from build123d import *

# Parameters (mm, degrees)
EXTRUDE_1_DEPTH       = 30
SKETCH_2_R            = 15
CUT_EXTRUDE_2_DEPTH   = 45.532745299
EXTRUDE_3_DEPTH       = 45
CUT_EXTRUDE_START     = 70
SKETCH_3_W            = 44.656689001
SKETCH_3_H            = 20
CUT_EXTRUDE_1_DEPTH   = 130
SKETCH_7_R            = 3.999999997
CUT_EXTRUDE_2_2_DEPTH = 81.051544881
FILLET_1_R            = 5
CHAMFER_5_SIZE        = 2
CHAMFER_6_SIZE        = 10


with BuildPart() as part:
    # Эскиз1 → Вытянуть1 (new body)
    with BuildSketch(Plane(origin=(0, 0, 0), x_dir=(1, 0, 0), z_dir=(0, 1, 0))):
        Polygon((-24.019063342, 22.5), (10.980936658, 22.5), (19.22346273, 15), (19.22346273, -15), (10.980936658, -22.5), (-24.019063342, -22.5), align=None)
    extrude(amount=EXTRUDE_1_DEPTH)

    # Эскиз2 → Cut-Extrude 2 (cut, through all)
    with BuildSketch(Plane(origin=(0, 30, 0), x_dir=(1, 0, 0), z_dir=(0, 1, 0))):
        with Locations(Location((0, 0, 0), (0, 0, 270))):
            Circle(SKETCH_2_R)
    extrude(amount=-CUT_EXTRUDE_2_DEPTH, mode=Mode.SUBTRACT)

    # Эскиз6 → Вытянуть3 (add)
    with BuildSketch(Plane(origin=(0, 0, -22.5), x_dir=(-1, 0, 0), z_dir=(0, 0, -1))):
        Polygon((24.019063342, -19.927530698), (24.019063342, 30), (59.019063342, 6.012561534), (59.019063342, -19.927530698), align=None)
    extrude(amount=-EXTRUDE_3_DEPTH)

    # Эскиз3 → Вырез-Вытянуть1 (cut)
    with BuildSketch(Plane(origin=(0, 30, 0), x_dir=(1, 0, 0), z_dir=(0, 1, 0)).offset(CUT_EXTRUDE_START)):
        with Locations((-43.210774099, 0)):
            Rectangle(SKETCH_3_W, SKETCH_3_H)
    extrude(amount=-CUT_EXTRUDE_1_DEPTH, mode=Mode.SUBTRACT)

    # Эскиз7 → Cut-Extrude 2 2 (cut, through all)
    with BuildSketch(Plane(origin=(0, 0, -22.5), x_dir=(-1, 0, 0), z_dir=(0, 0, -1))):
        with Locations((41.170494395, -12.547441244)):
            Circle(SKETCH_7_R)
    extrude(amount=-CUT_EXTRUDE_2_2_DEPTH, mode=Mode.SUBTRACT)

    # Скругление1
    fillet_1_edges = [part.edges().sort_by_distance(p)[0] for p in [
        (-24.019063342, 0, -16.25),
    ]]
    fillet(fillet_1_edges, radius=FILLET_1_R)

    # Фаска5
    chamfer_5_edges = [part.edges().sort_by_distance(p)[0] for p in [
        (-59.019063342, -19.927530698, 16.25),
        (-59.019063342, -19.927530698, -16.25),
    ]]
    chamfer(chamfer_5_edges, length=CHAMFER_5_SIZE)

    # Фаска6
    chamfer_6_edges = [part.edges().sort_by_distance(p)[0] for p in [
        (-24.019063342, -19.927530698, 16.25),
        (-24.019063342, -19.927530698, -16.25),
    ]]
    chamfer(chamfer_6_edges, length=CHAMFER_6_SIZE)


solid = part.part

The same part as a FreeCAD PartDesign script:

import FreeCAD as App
import Part
import Sketcher
Q = App.Units.Quantity


def edges_at(feature, points):
    """Names of the edges that pass closest to the given points."""
    edges = feature.Shape.Edges
    near = lambda p: min(range(len(edges)), key=lambda i: edges[i].distToShape(Part.Vertex(*p))[0])
    return sorted({f"Edge{near(p) + 1}" for p in points})

doc = App.newDocument("Part")
params = doc.addObject("Spreadsheet::Sheet", "Params")
for row, (alias, value) in enumerate([
    ("sketch1_width", "35 mm"),
    ("sketch1_height", "45 mm"),
    ("sketch1_height2", "30 mm"),
    ("pad1_length", "30 mm"),
    ("sketch2_diameter", "30 mm"),
    ("sketch3_width", "35 mm"),
    ("pad2_length", "45 mm"),
    ("sketch4_height", "20 mm"),
    ("pocket2_length", "130 mm"),
    ("sketch5_diameter", "8 mm"),
    ("fillet_radius", "5 mm"),
    ("chamfer_size", "2 mm"),
    ("chamfer2_size", "10 mm"),
], start=1):
    params.set(f"A{row}", alias)
    params.set(f"B{row}", "=" + value)
    params.setAlias(f"B{row}", alias)

body = doc.addObject("PartDesign::Body", "Body")

# Sketch on XZ plane
sketch1 = body.newObject("Sketcher::SketchObject", "Sketch")
sketch1.AttachmentSupport = (doc.getObject("XZ_Plane"), [""])
sketch1.MapMode = "FlatFace"
sketch1.addGeometry(Part.LineSegment(App.Vector(11, -22, 0), App.Vector(-24, -22, 0)), False)
sketch1.addGeometry(Part.LineSegment(App.Vector(-24, -22, 0), App.Vector(-24, 22, 0)), False)
sketch1.addGeometry(Part.LineSegment(App.Vector(-24, 22, 0), App.Vector(11, 22, 0)), False)
sketch1.addGeometry(Part.LineSegment(App.Vector(11, 22, 0), App.Vector(19, 15, 0)), False)
sketch1.addGeometry(Part.LineSegment(App.Vector(19, 15, 0), App.Vector(19, -15, 0)), False)
sketch1.addGeometry(Part.LineSegment(App.Vector(19, -15, 0), App.Vector(11, -22, 0)), False)
sketch1.addConstraint(Sketcher.Constraint("Coincident", 0, 2, 1, 1))
sketch1.addConstraint(Sketcher.Constraint("Coincident", 1, 2, 2, 1))
sketch1.addConstraint(Sketcher.Constraint("Coincident", 2, 2, 3, 1))
sketch1.addConstraint(Sketcher.Constraint("Coincident", 3, 2, 4, 1))
sketch1.addConstraint(Sketcher.Constraint("Coincident", 4, 2, 5, 1))
sketch1.addConstraint(Sketcher.Constraint("Coincident", 5, 2, 0, 1))
sketch1.addConstraint(Sketcher.Constraint("Horizontal", 0))
sketch1.addConstraint(Sketcher.Constraint("Vertical", 1))
sketch1.addConstraint(Sketcher.Constraint("Horizontal", 2))
sketch1.addConstraint(Sketcher.Constraint("Vertical", 4))
sketch1.addConstraint(Sketcher.Constraint("Symmetric", 2, 2, 5, 2, -1))
sketch1.addConstraint(Sketcher.Constraint("Equal", 3, 5))
sketch1.addConstraint(Sketcher.Constraint("DistanceX", 0, 2, 0, 1, Q("35 mm")))
sketch1.addConstraint(Sketcher.Constraint("DistanceY", 1, 1, 1, 2, Q("45 mm")))
sketch1.addConstraint(Sketcher.Constraint("DistanceY", 4, 2, 4, 1, Q("30 mm")))
sketch1.addConstraint(Sketcher.Constraint("Distance", 3, Q("11.144022 mm")))
sketch1.addConstraint(Sketcher.Constraint("DistanceX", 0, 2, -1, 1, Q("24.019063 mm")))
sketch1.setExpression("Constraints[12]", "Params.sketch1_width")
sketch1.setExpression("Constraints[13]", "Params.sketch1_height")
sketch1.setExpression("Constraints[14]", "Params.sketch1_height2")
pad1 = body.newObject("PartDesign::Pad", "Pad")
pad1.Profile = sketch1
pad1.setExpression("Length", "Params.pad1_length")
pad1.Reversed = True

# Sketch on XZ plane
sketch2 = body.newObject("Sketcher::SketchObject", "Sketch001")
sketch2.AttachmentSupport = (doc.getObject("XZ_Plane"), [""])
sketch2.MapMode = "FlatFace"
sketch2.AttachmentOffset = App.Placement(App.Vector(0, 0, -30), App.Rotation())
sketch2.addGeometry(Part.Circle(App.Vector(0, 0, 0), App.Vector(0, 0, 1), 15), False)
sketch2.addConstraint(Sketcher.Constraint("Coincident", 0, 3, -1, 1))
sketch2.addConstraint(Sketcher.Constraint("Diameter", 0, Q("30 mm")))
sketch2.setExpression("Constraints[1]", "Params.sketch2_diameter")
pocket1 = body.newObject("PartDesign::Pocket", "Pocket")
pocket1.Profile = sketch2
pocket1.Type = "ThroughAll"
pocket1.Reversed = True

# Sketch on XY plane
sketch3 = body.newObject("Sketcher::SketchObject", "Sketch002")
sketch3.AttachmentSupport = (doc.getObject("XY_Plane"), [""])
sketch3.MapMode = "FlatFace"
sketch3.AttachmentOffset = App.Placement(App.Vector(0, 0, -22.5), App.Rotation())
sketch3.addGeometry(Part.LineSegment(App.Vector(-24, 30, 0), App.Vector(-24, -20, 0)), False)
sketch3.addGeometry(Part.LineSegment(App.Vector(-24, -20, 0), App.Vector(-59, -20, 0)), False)
sketch3.addGeometry(Part.LineSegment(App.Vector(-59, -20, 0), App.Vector(-59, 6, 0)), False)
sketch3.addGeometry(Part.LineSegment(App.Vector(-59, 6, 0), App.Vector(-24, 30, 0)), False)
sketch3.addConstraint(Sketcher.Constraint("Coincident", 0, 2, 1, 1))
sketch3.addConstraint(Sketcher.Constraint("Coincident", 1, 2, 2, 1))
sketch3.addConstraint(Sketcher.Constraint("Coincident", 2, 2, 3, 1))
sketch3.addConstraint(Sketcher.Constraint("Coincident", 3, 2, 0, 1))
sketch3.addConstraint(Sketcher.Constraint("Vertical", 0))
sketch3.addConstraint(Sketcher.Constraint("Horizontal", 1))
sketch3.addConstraint(Sketcher.Constraint("Vertical", 2))
sketch3.addConstraint(Sketcher.Constraint("DistanceX", 1, 2, 1, 1, Q("35 mm")))
sketch3.addConstraint(Sketcher.Constraint("DistanceY", -1, 1, 3, 2, Q("30 mm")))
sketch3.addConstraint(Sketcher.Constraint("DistanceY", 0, 2, 0, 1, Q("49.927531 mm")))
sketch3.addConstraint(Sketcher.Constraint("DistanceY", 2, 1, 2, 2, Q("25.940092 mm")))
sketch3.addConstraint(Sketcher.Constraint("DistanceX", 0, 2, -1, 1, Q("24.019063 mm")))
sketch3.setExpression("Constraints[7]", "Params.sketch3_width")
pad2 = body.newObject("PartDesign::Pad", "Pad001")
pad2.Profile = sketch3
pad2.setExpression("Length", "Params.pad2_length")

# Sketch on XZ plane
sketch4 = body.newObject("Sketcher::SketchObject", "Sketch003")
sketch4.AttachmentSupport = (doc.getObject("XZ_Plane"), [""])
sketch4.MapMode = "FlatFace"
sketch4.AttachmentOffset = App.Placement(App.Vector(0, 0, -100), App.Rotation())
sketch4.addGeometry(Part.LineSegment(App.Vector(-66, -10, 0), App.Vector(-66, 10, 0)), False)
sketch4.addGeometry(Part.LineSegment(App.Vector(-66, 10, 0), App.Vector(-21, 10, 0)), False)
sketch4.addGeometry(Part.LineSegment(App.Vector(-21, 10, 0), App.Vector(-21, -10, 0)), False)
sketch4.addGeometry(Part.LineSegment(App.Vector(-21, -10, 0), App.Vector(-66, -10, 0)), False)
sketch4.addConstraint(Sketcher.Constraint("Coincident", 0, 2, 1, 1))
sketch4.addConstraint(Sketcher.Constraint("Coincident", 1, 2, 2, 1))
sketch4.addConstraint(Sketcher.Constraint("Coincident", 2, 2, 3, 1))
sketch4.addConstraint(Sketcher.Constraint("Coincident", 3, 2, 0, 1))
sketch4.addConstraint(Sketcher.Constraint("Vertical", 0))
sketch4.addConstraint(Sketcher.Constraint("Horizontal", 1))
sketch4.addConstraint(Sketcher.Constraint("Vertical", 2))
sketch4.addConstraint(Sketcher.Constraint("Horizontal", 3))
sketch4.addConstraint(Sketcher.Constraint("DistanceY", 0, 1, 0, 2, Q("20 mm")))
sketch4.addConstraint(Sketcher.Constraint("DistanceY", -1, 1, 0, 2, Q("10 mm")))
sketch4.addConstraint(Sketcher.Constraint("DistanceX", 1, 1, 1, 2, Q("44.656689 mm")))
sketch4.addConstraint(Sketcher.Constraint("DistanceX", 0, 2, -1, 1, Q("65.539119 mm")))
sketch4.setExpression("Constraints[8]", "Params.sketch4_height")
pocket2 = body.newObject("PartDesign::Pocket", "Pocket001")
pocket2.Profile = sketch4
pocket2.setExpression("Length", "Params.pocket2_length")
pocket2.Reversed = True

# Sketch on XY plane
sketch5 = body.newObject("Sketcher::SketchObject", "Sketch004")
sketch5.AttachmentSupport = (doc.getObject("XY_Plane"), [""])
sketch5.MapMode = "FlatFace"
sketch5.AttachmentOffset = App.Placement(App.Vector(0, 0, -22.5), App.Rotation())
sketch5.addGeometry(Part.Circle(App.Vector(-41.2, -12.5, 0), App.Vector(0, 0, 1), 4), False)
sketch5.addConstraint(Sketcher.Constraint("Diameter", 0, Q("8 mm")))
sketch5.addConstraint(Sketcher.Constraint("DistanceY", 0, 3, -1, 1, Q("12.547441 mm")))
sketch5.addConstraint(Sketcher.Constraint("DistanceX", 0, 3, -1, 1, Q("41.170494 mm")))
sketch5.setExpression("Constraints[0]", "Params.sketch5_diameter")
pocket3 = body.newObject("PartDesign::Pocket", "Pocket002")
pocket3.Profile = sketch5
pocket3.Type = "ThroughAll"
pocket3.Reversed = True
doc.recompute()

fillet = body.newObject("PartDesign::Fillet", "Fillet")
fillet.Base = (pocket3, edges_at(pocket3, [(-24.019, 0, -16.25)]))
fillet.setExpression("Radius", "Params.fillet_radius")
doc.recompute()

chamfer = body.newObject("PartDesign::Chamfer", "Chamfer")
chamfer.Base = (fillet, edges_at(fillet, [(-59.019, -19.928, 16.25), (-59.019, -19.928, -16.25)]))
chamfer.setExpression("Size", "Params.chamfer_size")
doc.recompute()

chamfer2 = body.newObject("PartDesign::Chamfer", "Chamfer001")
chamfer2.Base = (chamfer, edges_at(chamfer, [(-24.019, -19.928, 16.25), (-24.019, -19.928, -16.25)]))
chamfer2.setExpression("Size", "Params.chamfer2_size")

doc.recompute()
